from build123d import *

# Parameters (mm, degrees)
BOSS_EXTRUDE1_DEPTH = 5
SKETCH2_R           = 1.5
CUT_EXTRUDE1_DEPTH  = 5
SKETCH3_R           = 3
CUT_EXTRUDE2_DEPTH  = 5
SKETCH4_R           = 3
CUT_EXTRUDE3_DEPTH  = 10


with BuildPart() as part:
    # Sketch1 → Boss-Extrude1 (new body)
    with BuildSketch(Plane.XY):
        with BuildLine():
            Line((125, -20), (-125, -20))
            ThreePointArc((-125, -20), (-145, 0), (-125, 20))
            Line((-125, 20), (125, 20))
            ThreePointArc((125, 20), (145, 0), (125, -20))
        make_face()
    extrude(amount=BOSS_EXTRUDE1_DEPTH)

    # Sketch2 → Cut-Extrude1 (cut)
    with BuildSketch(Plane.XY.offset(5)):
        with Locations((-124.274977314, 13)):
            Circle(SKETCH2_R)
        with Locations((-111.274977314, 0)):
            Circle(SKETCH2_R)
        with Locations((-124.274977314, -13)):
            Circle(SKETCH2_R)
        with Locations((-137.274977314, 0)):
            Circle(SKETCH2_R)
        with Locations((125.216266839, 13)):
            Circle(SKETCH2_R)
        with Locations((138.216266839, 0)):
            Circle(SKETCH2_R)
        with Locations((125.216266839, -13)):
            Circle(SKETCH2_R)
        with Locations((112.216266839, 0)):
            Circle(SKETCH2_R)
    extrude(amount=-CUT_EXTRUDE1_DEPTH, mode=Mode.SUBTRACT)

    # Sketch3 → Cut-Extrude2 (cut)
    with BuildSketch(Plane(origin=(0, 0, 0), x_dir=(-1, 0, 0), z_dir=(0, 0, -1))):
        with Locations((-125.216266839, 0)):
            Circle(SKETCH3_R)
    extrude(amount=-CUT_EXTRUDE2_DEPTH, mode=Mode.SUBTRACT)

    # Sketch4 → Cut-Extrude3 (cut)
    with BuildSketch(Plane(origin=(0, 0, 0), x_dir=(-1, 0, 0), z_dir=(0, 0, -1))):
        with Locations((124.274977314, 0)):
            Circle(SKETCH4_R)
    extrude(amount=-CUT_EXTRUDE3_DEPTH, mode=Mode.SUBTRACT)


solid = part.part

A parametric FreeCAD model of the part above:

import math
import FreeCAD as App
import Part
import Sketcher
Q = App.Units.Quantity

doc = App.newDocument("Part")
body = doc.addObject("PartDesign::Body", "Body")

sketch1 = body.newObject("Sketcher::SketchObject", "Sketch")
sketch1.AttachmentSupport = (doc.getObject("XY_Plane"), [""])
sketch1.MapMode = "FlatFace"
sketch1.addGeometry(Part.LineSegment(App.Vector(-125, -20, 0), App.Vector(125, -20, 0)), False)
sketch1.addGeometry(Part.ArcOfCircle(Part.Circle(App.Vector(125, 0, 0), App.Vector(0, 0, 1), 20), math.radians(-90), math.radians(90)), False)
sketch1.addGeometry(Part.LineSegment(App.Vector(125, 20, 0), App.Vector(-125, 20, 0)), False)
sketch1.addGeometry(Part.ArcOfCircle(Part.Circle(App.Vector(-125, 0, 0), App.Vector(0, 0, 1), 20), math.radians(90), math.radians(270)), False)
sketch1.addConstraint(Sketcher.Constraint("Tangent", 0, 2, 1, 1))
sketch1.addConstraint(Sketcher.Constraint("Tangent", 1, 2, 2, 1))
sketch1.addConstraint(Sketcher.Constraint("Tangent", 2, 2, 3, 1))
sketch1.addConstraint(Sketcher.Constraint("Tangent", 3, 2, 0, 1))
sketch1.addConstraint(Sketcher.Constraint("Horizontal", 0))
sketch1.addConstraint(Sketcher.Constraint("Horizontal", 2))
sketch1.addConstraint(Sketcher.Constraint("Symmetric", 1, 3, 3, 3, -1, 1))
sketch1.addConstraint(Sketcher.Constraint("Radius", 1, Q("20 mm")))
sketch1.addConstraint(Sketcher.Constraint("DistanceX", 0, 1, 0, 2, Q("250 mm")))
pad1 = body.newObject("PartDesign::Pad", "Pad")
pad1.Profile = sketch1
pad1.Length = 5

sketch2 = body.newObject("Sketcher::SketchObject", "Sketch001")
sketch2.AttachmentSupport = (doc.getObject("XY_Plane"), [""])
sketch2.MapMode = "FlatFace"
sketch2.AttachmentOffset = App.Placement(App.Vector(0, 0, 5), App.Rotation())
sketch2.addGeometry(Part.Circle(App.Vector(-124.274977, 13, 0), App.Vector(0, 0, 1), 1.5), False)
sketch2.addGeometry(Part.Circle(App.Vector(-111.274977, 0, 0), App.Vector(0, 0, 1), 1.5), False)
sketch2.addGeometry(Part.Circle(App.Vector(-124.274977, -13, 0), App.Vector(0, 0, 1), 1.5), False)
sketch2.addGeometry(Part.Circle(App.Vector(-137.274977, 0, 0), App.Vector(0, 0, 1), 1.5), False)
sketch2.addGeometry(Part.Circle(App.Vector(125.216267, 13, 0), App.Vector(0, 0, 1), 1.5), False)
sketch2.addGeometry(Part.Circle(App.Vector(138.216267, 0, 0), App.Vector(0, 0, 1), 1.5), False)
sketch2.addGeometry(Part.Circle(App.Vector(125.216267, -13, 0), App.Vector(0, 0, 1), 1.5), False)
sketch2.addGeometry(Part.Circle(App.Vector(112.216267, 0, 0), App.Vector(0, 0, 1), 1.5), False)
sketch2.addConstraint(Sketcher.Constraint("Equal", 0, 1))
sketch2.addConstraint(Sketcher.Constraint("Equal", 1, 2))
sketch2.addConstraint(Sketcher.Constraint("Equal", 2, 3))
sketch2.addConstraint(Sketcher.Constraint("Equal", 3, 4))
sketch2.addConstraint(Sketcher.Constraint("Equal", 4, 5))
sketch2.addConstraint(Sketcher.Constraint("Equal", 5, 6))
sketch2.addConstraint(Sketcher.Constraint("Equal", 6, 7))
sketch2.addConstraint(Sketcher.Constraint("Symmetric", 0, 3, 2, 3, -1))
sketch2.addConstraint(Sketcher.Constraint("Symmetric", 4, 3, 6, 3, -1))
sketch2.addConstraint(Sketcher.Constraint("PointOnObject", 1, 3, -1))
sketch2.addConstraint(Sketcher.Constraint("PointOnObject", 3, 3, -1))
sketch2.addConstraint(Sketcher.Constraint("PointOnObject", 5, 3, -1))
sketch2.addConstraint(Sketcher.Constraint("PointOnObject", 7, 3, -1))
sketch2.addConstraint(Sketcher.Constraint("Horizontal", 0, 3, 4, 3))
sketch2.addConstraint(Sketcher.Constraint("Diameter", 0, Q("3 mm")))
sketch2.addConstraint(Sketcher.Constraint("DistanceY", -1, 1, 0, 3, Q("13 mm")))
sketch2.addConstraint(Sketcher.Constraint("DistanceX", 0, 3, 1, 3, Q("13 mm")))
sketch2.addConstraint(Sketcher.Constraint("DistanceX", 3, 3, 0, 3, Q("13 mm")))
sketch2.addConstraint(Sketcher.Constraint("DistanceX", 4, 3, 5, 3, Q("13 mm")))
sketch2.addConstraint(Sketcher.Constraint("DistanceX", 7, 3, 4, 3, Q("13 mm")))
sketch2.addConstraint(Sketcher.Constraint("DistanceX", 0, 3, -1, 1, Q("124.274977 mm")))
sketch2.addConstraint(Sketcher.Constraint("DistanceX", -1, 1, 4, 3, Q("125.216267 mm")))
pocket1 = body.newObject("PartDesign::Pocket", "Pocket")
pocket1.Profile = sketch2
pocket1.Length = 5

sketch3 = body.newObject("Sketcher::SketchObject", "Sketch002")
sketch3.AttachmentSupport = (doc.getObject("XY_Plane"), [""])
sketch3.MapMode = "FlatFace"
sketch3.addGeometry(Part.Circle(App.Vector(125.216267, 0, 0), App.Vector(0, 0, 1), 3), False)
sketch3.addConstraint(Sketcher.Constraint("PointOnObject", 0, 3, -1))
sketch3.addConstraint(Sketcher.Constraint("Diameter", 0, Q("6 mm")))
sketch3.addConstraint(Sketcher.Constraint("DistanceX", -1, 1, 0, 3, Q("125.216267 mm")))
pocket2 = body.newObject("PartDesign::Pocket", "Pocket001")
pocket2.Profile = sketch3
pocket2.Length = 5
pocket2.Reversed = True

sketch4 = body.newObject("Sketcher::SketchObject", "Sketch003")
sketch4.AttachmentSupport = (doc.getObject("XY_Plane"), [""])
sketch4.MapMode = "FlatFace"
sketch4.addGeometry(Part.Circle(App.Vector(-124.274977, 0, 0), App.Vector(0, 0, 1), 3), False)
sketch4.addConstraint(Sketcher.Constraint("PointOnObject", 0, 3, -1))
sketch4.addConstraint(Sketcher.Constraint("Diameter", 0, Q("6 mm")))
sketch4.addConstraint(Sketcher.Constraint("DistanceX", 0, 3, -1, 1, Q("124.274977 mm")))
pocket3 = body.newObject("PartDesign::Pocket", "Pocket002")
pocket3.Profile = sketch4
pocket3.Length = 10
pocket3.Reversed = True

doc.recompute()
